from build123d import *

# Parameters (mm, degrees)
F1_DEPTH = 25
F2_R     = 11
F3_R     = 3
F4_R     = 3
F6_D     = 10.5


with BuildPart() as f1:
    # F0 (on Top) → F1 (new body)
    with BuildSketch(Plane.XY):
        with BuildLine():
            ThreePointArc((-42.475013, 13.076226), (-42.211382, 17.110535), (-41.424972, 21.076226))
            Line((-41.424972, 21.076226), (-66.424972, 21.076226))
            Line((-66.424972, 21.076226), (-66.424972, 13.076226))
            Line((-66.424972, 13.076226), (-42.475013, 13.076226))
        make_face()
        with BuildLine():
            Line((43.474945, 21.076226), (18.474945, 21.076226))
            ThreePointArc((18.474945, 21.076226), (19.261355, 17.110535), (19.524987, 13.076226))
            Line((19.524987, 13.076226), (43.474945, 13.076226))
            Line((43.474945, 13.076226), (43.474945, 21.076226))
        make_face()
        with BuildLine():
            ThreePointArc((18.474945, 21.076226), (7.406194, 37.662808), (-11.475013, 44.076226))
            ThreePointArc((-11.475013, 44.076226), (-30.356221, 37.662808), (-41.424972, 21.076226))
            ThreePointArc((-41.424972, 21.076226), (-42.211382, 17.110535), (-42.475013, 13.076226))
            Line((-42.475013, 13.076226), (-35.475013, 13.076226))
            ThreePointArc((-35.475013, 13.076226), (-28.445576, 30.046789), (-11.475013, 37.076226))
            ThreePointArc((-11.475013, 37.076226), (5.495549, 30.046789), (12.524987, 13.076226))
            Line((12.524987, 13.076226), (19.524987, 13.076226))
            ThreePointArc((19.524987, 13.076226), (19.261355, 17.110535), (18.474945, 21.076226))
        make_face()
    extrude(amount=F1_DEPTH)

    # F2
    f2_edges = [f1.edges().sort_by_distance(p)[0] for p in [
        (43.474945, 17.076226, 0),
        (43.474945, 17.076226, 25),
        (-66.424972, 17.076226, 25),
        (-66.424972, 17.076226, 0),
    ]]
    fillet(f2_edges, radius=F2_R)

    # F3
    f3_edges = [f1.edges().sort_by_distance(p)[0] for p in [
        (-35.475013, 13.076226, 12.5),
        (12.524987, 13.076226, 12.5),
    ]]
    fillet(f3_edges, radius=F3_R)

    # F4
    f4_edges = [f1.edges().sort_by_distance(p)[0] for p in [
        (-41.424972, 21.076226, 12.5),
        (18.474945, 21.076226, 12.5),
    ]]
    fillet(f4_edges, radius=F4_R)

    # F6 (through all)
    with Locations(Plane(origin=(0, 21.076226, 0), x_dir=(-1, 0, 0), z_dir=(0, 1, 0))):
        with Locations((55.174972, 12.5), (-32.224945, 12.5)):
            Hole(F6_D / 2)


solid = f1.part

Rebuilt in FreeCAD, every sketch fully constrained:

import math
import FreeCAD as App
import Part
import Sketcher


def edges_at(feature, points):
    """Names of the edges that pass closest to the given points."""
    edges = feature.Shape.Edges
    near = lambda p: min(range(len(edges)), key=lambda i: edges[i].distToShape(Part.Vertex(*p))[0])
    return sorted({f"Edge{near(p) + 1}" for p in points})

doc = App.newDocument("Part")
body = doc.addObject("PartDesign::Body", "Body")

# Sketch on XY plane
sketch1 = body.newObject("Sketcher::SketchObject", "Sketch")
sketch1.AttachmentSupport = (doc.getObject("XY_Plane"), [""])
sketch1.MapMode = "FlatFace"
sketch1.addGeometry([
    Part.LineSegment(App.Vector(-41, 21, 0), App.Vector(-66, 21, 0)),  # 0
    Part.LineSegment(App.Vector(-66, 21, 0), App.Vector(-66, 13, 0)),  # 1
    Part.LineSegment(App.Vector(-66, 13, 0), App.Vector(-35, 13, 0)),  # 2
    Part.ArcOfCircle(Part.Circle(App.Vector(-11, 13, 0), App.Vector(0, 0, 1), 24), math.radians(90), math.radians(180)),  # 3
    Part.ArcOfCircle(Part.Circle(App.Vector(-11, 13, 0), App.Vector(0, 0, 1), 24), math.radians(0), math.radians(90)),  # 4
    Part.LineSegment(App.Vector(13, 13, 0), App.Vector(43, 13, 0)),  # 5
    Part.LineSegment(App.Vector(43, 13, 0), App.Vector(43, 21, 0)),  # 6
    Part.LineSegment(App.Vector(43, 21, 0), App.Vector(18, 21, 0)),  # 7
    Part.ArcOfCircle(Part.Circle(App.Vector(-11, 13, 0), App.Vector(0, 0, 1), 31), math.radians(15), math.radians(90)),  # 8
    Part.ArcOfCircle(Part.Circle(App.Vector(-11, 13, 0), App.Vector(0, 0, 1), 31), math.radians(90), math.radians(165)),  # 9
], False)
sketch1.addConstraint([
    Sketcher.Constraint("Coincident", 0, 2, 1, 1),
    Sketcher.Constraint("Coincident", 1, 2, 2, 1),
    Sketcher.Constraint("Coincident", 2, 2, 3, 2),
    Sketcher.Constraint("Tangent", 3, 1, 4, 2),
    Sketcher.Constraint("Coincident", 4, 1, 5, 1),
    Sketcher.Constraint("Coincident", 5, 2, 6, 1),
    Sketcher.Constraint("Coincident", 6, 2, 7, 1),
    Sketcher.Constraint("Coincident", 7, 2, 8, 1),
    Sketcher.Constraint("Tangent", 8, 2, 9, 1),
    Sketcher.Constraint("Coincident", 9, 2, 0, 1),
    Sketcher.Constraint("Horizontal", 0),
    Sketcher.Constraint("Vertical", 1),
    Sketcher.Constraint("Horizontal", 2),
    Sketcher.Constraint("Horizontal", 5),
    Sketcher.Constraint("Vertical", 6),
    Sketcher.Constraint("Horizontal", 7),
    Sketcher.Constraint("Coincident", 8, 3, 3, 3),
    Sketcher.Constraint("Equal", 3, 4),
    Sketcher.Constraint("Equal", 8, 9),
    Sketcher.Constraint("Horizontal", 9, 3, 1, 2),
    Sketcher.Constraint("Horizontal", 2, 2, 4, 1),
    Sketcher.Constraint("Horizontal", 0, 2, 6, 2),
    Sketcher.Constraint("Vertical", 9, 3, 3, 1),
    Sketcher.Constraint("Vertical", 3, 1, 8, 2),
    Sketcher.Constraint("Equal", 2, 5),
    Sketcher.Constraint("Radius", 3, 23.999999),
    Sketcher.Constraint("Radius", 8, 31.0),
    Sketcher.Constraint("DistanceX", 0, 2, 0, 1, 25.0),
    Sketcher.Constraint("DistanceY", 1, 2, 1, 1, 8.0),
    Sketcher.Constraint("DistanceX", 0, 2, -1, 1, 66.424972),
    Sketcher.Constraint("DistanceY", -1, 1, 3, 3, 13.076227),
])
pad1 = body.newObject("PartDesign::Pad", "Pad")
pad1.Profile = sketch1
pad1.Length = 25
doc.recompute()

fillet = body.newObject("PartDesign::Fillet", "Fillet")
fillet.Base = (pad1, edges_at(pad1, [
    (43.475, 17.076, 0),
    (43.475, 17.076, 25),
    (-66.425, 17.076, 25),
    (-66.425, 17.076, 0),
]))
fillet.Radius = 11
doc.recompute()

fillet2 = body.newObject("PartDesign::Fillet", "Fillet001")
fillet2.Base = (fillet, edges_at(fillet, [(-35.475, 13.076, 12.5), (12.525, 13.076, 12.5)]))
fillet2.Radius = 3
doc.recompute()

fillet3 = body.newObject("PartDesign::Fillet", "Fillet002")
fillet3.Base = (fillet2, edges_at(fillet2, [(-41.425, 21.076, 12.5), (18.475, 21.076, 12.5)]))
fillet3.Radius = 3

# Sketch on XZ plane
sketch2 = body.newObject("Sketcher::SketchObject", "Sketch001")
sketch2.AttachmentSupport = (doc.getObject("XZ_Plane"), [""])
sketch2.MapMode = "FlatFace"
sketch2.AttachmentOffset = App.Placement(App.Vector(0, 0, -21.076226), App.Rotation())
sketch2.addGeometry([
    Part.Circle(App.Vector(-55, 12, 0), App.Vector(0, 0, 1), 5),
    Part.Circle(App.Vector(32, 12, 0), App.Vector(0, 0, 1), 5),
], False)
sketch2.addConstraint([
    Sketcher.Constraint("Equal", 0, 1),
    Sketcher.Constraint("Horizontal", 0, 3, 1, 3),
    Sketcher.Constraint("Diameter", 0, 10.5),
    Sketcher.Constraint("DistanceY", -1, 1, 0, 3, 12.5),
    Sketcher.Constraint("DistanceX", 0, 3, -1, 1, 55.174972),
    Sketcher.Constraint("DistanceX", -1, 1, 1, 3, 32.224945),
])
doc.recompute()
hole = body.newObject("PartDesign::Hole", "Hole")
hole.Profile = sketch2
hole.ThreadType = "None"
hole.Diameter = 10.5
hole.DepthType = "ThroughAll"
hole.Reversed = True

doc.recompute()
